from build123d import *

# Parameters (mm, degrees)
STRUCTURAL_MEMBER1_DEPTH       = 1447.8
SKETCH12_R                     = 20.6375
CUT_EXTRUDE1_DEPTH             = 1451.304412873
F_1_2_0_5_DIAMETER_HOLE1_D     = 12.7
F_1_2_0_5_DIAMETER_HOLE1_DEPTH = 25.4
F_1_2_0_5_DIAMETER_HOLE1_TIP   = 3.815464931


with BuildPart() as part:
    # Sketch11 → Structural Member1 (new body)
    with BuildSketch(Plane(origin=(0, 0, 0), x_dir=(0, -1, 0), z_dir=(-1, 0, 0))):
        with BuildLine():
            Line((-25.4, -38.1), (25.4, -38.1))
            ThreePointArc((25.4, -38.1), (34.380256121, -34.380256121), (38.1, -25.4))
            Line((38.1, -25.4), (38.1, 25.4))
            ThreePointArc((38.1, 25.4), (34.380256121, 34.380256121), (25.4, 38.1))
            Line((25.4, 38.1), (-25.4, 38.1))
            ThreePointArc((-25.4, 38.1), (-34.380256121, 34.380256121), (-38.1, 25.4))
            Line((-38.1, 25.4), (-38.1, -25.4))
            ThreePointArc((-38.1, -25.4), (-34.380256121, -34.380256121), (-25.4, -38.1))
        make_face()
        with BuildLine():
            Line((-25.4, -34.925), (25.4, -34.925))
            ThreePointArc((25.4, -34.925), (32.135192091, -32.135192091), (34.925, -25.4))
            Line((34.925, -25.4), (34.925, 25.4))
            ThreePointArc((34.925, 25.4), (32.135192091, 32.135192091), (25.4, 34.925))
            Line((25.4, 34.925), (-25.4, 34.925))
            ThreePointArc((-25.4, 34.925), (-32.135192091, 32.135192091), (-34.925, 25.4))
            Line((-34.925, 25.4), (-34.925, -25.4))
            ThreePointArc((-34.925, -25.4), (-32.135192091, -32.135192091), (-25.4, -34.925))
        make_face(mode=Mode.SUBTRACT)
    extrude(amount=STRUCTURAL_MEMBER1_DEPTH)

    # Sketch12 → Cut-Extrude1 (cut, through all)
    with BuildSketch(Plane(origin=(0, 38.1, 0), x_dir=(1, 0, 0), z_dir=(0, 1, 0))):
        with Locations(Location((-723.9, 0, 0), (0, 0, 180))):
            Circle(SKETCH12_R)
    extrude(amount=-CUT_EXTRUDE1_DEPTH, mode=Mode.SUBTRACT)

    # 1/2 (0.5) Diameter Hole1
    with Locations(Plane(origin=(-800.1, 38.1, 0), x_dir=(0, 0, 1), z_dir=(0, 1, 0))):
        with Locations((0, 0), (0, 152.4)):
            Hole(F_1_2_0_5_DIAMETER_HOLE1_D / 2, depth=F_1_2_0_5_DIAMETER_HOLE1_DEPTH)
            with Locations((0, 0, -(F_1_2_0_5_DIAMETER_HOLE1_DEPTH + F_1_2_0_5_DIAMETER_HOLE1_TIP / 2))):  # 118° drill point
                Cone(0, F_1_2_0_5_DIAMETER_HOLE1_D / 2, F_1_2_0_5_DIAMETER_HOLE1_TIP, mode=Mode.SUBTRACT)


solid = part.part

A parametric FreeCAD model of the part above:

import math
import FreeCAD as App
import Part
import Sketcher

V = App.Vector
Q = App.Units.Quantity

doc = App.newDocument("Part")
body = doc.addObject("PartDesign::Body", "Body")

# Sketch on YZ plane
sketch1 = body.newObject("Sketcher::SketchObject", "Sketch")
sketch1.AttachmentSupport = (doc.getObject("YZ_Plane"), [""])
sketch1.MapMode = "FlatFace"
sketch1.addGeometry([
    Part.LineSegment(V(25, -38, 0), V(-25, -38, 0)),  # 0
    Part.ArcOfCircle(Part.Circle(V(-25, -25, 0), V(0, 0, 1), 13), math.radians(180), math.radians(270)),  # 1
    Part.LineSegment(V(-38, -25, 0), V(-38, 25, 0)),  # 2
    Part.ArcOfCircle(Part.Circle(V(-25, 25, 0), V(0, 0, 1), 13), math.radians(90), math.radians(180)),  # 3
    Part.LineSegment(V(-25, 38, 0), V(25, 38, 0)),  # 4
    Part.ArcOfCircle(Part.Circle(V(25, 25, 0), V(0, 0, 1), 13), math.radians(0), math.radians(90)),  # 5
    Part.LineSegment(V(38, 25, 0), V(38, -25, 0)),  # 6
    Part.ArcOfCircle(Part.Circle(V(25, -25, 0), V(0, 0, 1), 13), math.radians(-90), math.radians(0)),  # 7
    Part.LineSegment(V(-25, -35, 0), V(25, -35, 0)),  # 8
    Part.ArcOfCircle(Part.Circle(V(25, -25, 0), V(0, 0, 1), 10), math.radians(-90), math.radians(0)),  # 9
    Part.LineSegment(V(35, -25, 0), V(35, 25, 0)),  # 10
    Part.ArcOfCircle(Part.Circle(V(25, 25, 0), V(0, 0, 1), 10), math.radians(0), math.radians(90)),  # 11
    Part.LineSegment(V(25, 35, 0), V(-25, 35, 0)),  # 12
    Part.ArcOfCircle(Part.Circle(V(-25, 25, 0), V(0, 0, 1), 10), math.radians(90), math.radians(180)),  # 13
    Part.LineSegment(V(-35, 25, 0), V(-35, -25, 0)),  # 14
    Part.ArcOfCircle(Part.Circle(V(-25, -25, 0), V(0, 0, 1), 10), math.radians(180), math.radians(270)),  # 15
], False)
sketch1.addConstraint([
    Sketcher.Constraint("Tangent", 0, 2, 1, 2),
    Sketcher.Constraint("Tangent", 1, 1, 2, 1),
    Sketcher.Constraint("Tangent", 2, 2, 3, 2),
    Sketcher.Constraint("Tangent", 3, 1, 4, 1),
    Sketcher.Constraint("Tangent", 4, 2, 5, 2),
    Sketcher.Constraint("Tangent", 5, 1, 6, 1),
    Sketcher.Constraint("Tangent", 6, 2, 7, 2),
    Sketcher.Constraint("Tangent", 7, 1, 0, 1),
    Sketcher.Constraint("Tangent", 8, 2, 9, 1),
    Sketcher.Constraint("Tangent", 9, 2, 10, 1),
    Sketcher.Constraint("Tangent", 10, 2, 11, 1),
    Sketcher.Constraint("Tangent", 11, 2, 12, 1),
    Sketcher.Constraint("Tangent", 12, 2, 13, 1),
    Sketcher.Constraint("Tangent", 13, 2, 14, 1),
    Sketcher.Constraint("Tangent", 14, 2, 15, 1),
    Sketcher.Constraint("Tangent", 15, 2, 8, 1),
    Sketcher.Constraint("Horizontal", 0),
    Sketcher.Constraint("Vertical", 2),
    Sketcher.Constraint("Horizontal", 4),
    Sketcher.Constraint("Vertical", 6),
    Sketcher.Constraint("Horizontal", 8),
    Sketcher.Constraint("Vertical", 10),
    Sketcher.Constraint("Horizontal", 12),
    Sketcher.Constraint("Vertical", 14),
    Sketcher.Constraint("Coincident", 9, 3, 7, 3),
    Sketcher.Constraint("Coincident", 11, 3, 5, 3),
    Sketcher.Constraint("Coincident", 13, 3, 3, 3),
    Sketcher.Constraint("Equal", 1, 3),
    Sketcher.Constraint("Equal", 3, 5),
    Sketcher.Constraint("Equal", 5, 7),
    Sketcher.Constraint("Equal", 13, 15),
    Sketcher.Constraint("Symmetric", 1, 3, 5, 3, -1, 1),
    Sketcher.Constraint("Equal", 12, 2),
    Sketcher.Constraint("Radius", 1, Q("0.5 in")),
    Sketcher.Constraint("DistanceX", 0, 2, 0, 1, Q("2 in")),
    Sketcher.Constraint("Radius", 9, Q("0.375 in")),
])
pad1 = body.newObject("PartDesign::Pad", "Pad")
pad1.Profile = sketch1
pad1.Length = Q("57 in")
pad1.Reversed = True

# Sketch on XZ plane
sketch2 = body.newObject("Sketcher::SketchObject", "Sketch001")
sketch2.AttachmentSupport = (doc.getObject("XZ_Plane"), [""])
sketch2.MapMode = "FlatFace"
sketch2.AttachmentOffset = App.Placement(V(0, 0, -1.5 * 25.4), App.Rotation())
sketch2.addGeometry(Part.Circle(V(-724, 0, 0), V(0, 0, 1), 21), False)
sketch2.addConstraint([
    Sketcher.Constraint("PointOnObject", 0, 3, -1),
    Sketcher.Constraint("Diameter", 0, Q("1.625 in")),
    Sketcher.Constraint("DistanceX", 0, 3, -1, 1, Q("28.5 in")),
])
pocket1 = body.newObject("PartDesign::Pocket", "Pocket")
pocket1.Profile = sketch2
pocket1.Type = "ThroughAll"
pocket1.Reversed = True

# Sketch on XZ plane
sketch3 = body.newObject("Sketcher::SketchObject", "Sketch002")
sketch3.AttachmentSupport = (doc.getObject("XZ_Plane"), [""])
sketch3.MapMode = "FlatFace"
sketch3.AttachmentOffset = App.Placement(V(0, 0, -1.5 * 25.4), App.Rotation())
sketch3.addGeometry([
    Part.Circle(V(-800, 0, 0), V(0, 0, 1), 6),
    Part.Circle(V(-648, 0, 0), V(0, 0, 1), 6),
], False)
sketch3.addConstraint([
    Sketcher.Constraint("Equal", 0, 1),
    Sketcher.Constraint("PointOnObject", 0, 3, -1),
    Sketcher.Constraint("PointOnObject", 1, 3, -1),
    Sketcher.Constraint("Diameter", 0, Q("0.5 in")),
    Sketcher.Constraint("DistanceX", 0, 3, 1, 3, Q("6 in")),
    Sketcher.Constraint("DistanceX", 0, 3, -1, 1, Q("31.5 in")),
])
doc.recompute()
hole = body.newObject("PartDesign::Hole", "Hole")
hole.Profile = sketch3
hole.ThreadType = "None"
hole.Diameter = Q("0.5 in")
hole.DepthType = "Dimension"
hole.Depth = Q("1 in")
hole.DrillPoint = "Angled"
hole.DrillPointAngle = 118
hole.Reversed = True

doc.recompute()
